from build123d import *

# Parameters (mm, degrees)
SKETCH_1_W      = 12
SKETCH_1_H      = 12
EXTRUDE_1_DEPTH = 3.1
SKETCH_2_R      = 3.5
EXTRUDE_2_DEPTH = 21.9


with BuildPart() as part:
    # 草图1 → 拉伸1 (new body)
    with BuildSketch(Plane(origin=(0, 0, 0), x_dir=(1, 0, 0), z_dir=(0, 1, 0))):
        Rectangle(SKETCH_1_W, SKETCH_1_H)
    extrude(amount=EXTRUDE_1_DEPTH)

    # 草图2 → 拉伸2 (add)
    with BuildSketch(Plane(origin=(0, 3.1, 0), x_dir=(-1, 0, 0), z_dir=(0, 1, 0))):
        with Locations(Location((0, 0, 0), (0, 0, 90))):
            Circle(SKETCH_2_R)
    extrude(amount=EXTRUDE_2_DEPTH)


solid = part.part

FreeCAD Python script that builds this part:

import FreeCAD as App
import Part
import Sketcher

V = App.Vector

doc = App.newDocument("Part")
params = doc.addObject("Spreadsheet::Sheet", "Params")
for row, (alias, value) in enumerate([
    ("sketch1_width", "12 mm"),
    ("pad1_length", "3.1 mm"),
    ("sketch2_diameter", "7 mm"),
    ("pad2_length", "21.9 mm"),
], start=1):
    params.set(f"A{row}", alias)
    params.set(f"B{row}", "=" + value)
    params.setAlias(f"B{row}", alias)

body = doc.addObject("PartDesign::Body", "Body")

# Sketch on XZ plane
sketch1 = body.newObject("Sketcher::SketchObject", "Sketch")
sketch1.AttachmentSupport = (doc.getObject("XZ_Plane"), [""])
sketch1.MapMode = "FlatFace"
sketch1.addGeometry([
    Part.LineSegment(V(-6, -6, 0), V(-6, 6, 0)),
    Part.LineSegment(V(-6, 6, 0), V(6, 6, 0)),
    Part.LineSegment(V(6, 6, 0), V(6, -6, 0)),
    Part.LineSegment(V(6, -6, 0), V(-6, -6, 0)),
], False)
sketch1.addConstraint([
    Sketcher.Constraint("Coincident", 0, 2, 1, 1),
    Sketcher.Constraint("Coincident", 1, 2, 2, 1),
    Sketcher.Constraint("Coincident", 2, 2, 3, 1),
    Sketcher.Constraint("Coincident", 3, 2, 0, 1),
    Sketcher.Constraint("Vertical", 0),
    Sketcher.Constraint("Horizontal", 1),
    Sketcher.Constraint("Vertical", 2),
    Sketcher.Constraint("Horizontal", 3),
    Sketcher.Constraint("Symmetric", 0, 2, 2, 2, -1, 1),
    Sketcher.Constraint("Equal", 3, 0),
    Sketcher.Constraint("DistanceX", 1, 1, 1, 2, 12.0),
])
sketch1.setExpression("Constraints[10]", "Params.sketch1_width")
pad1 = body.newObject("PartDesign::Pad", "Pad")
pad1.Profile = sketch1
pad1.setExpression("Length", "Params.pad1_length")
pad1.Reversed = True

# Sketch on XZ plane
sketch2 = body.newObject("Sketcher::SketchObject", "Sketch001")
sketch2.AttachmentSupport = (doc.getObject("XZ_Plane"), [""])
sketch2.MapMode = "FlatFace"
sketch2.AttachmentOffset = App.Placement(V(0, 0, -3.1), App.Rotation())
sketch2.addGeometry(Part.Circle(V(0, 0, 0), V(0, 0, 1), 3.5), False)
sketch2.addConstraint([
    Sketcher.Constraint("Coincident", 0, 3, -1, 1),
    Sketcher.Constraint("Diameter", 0, 7.0),
])
sketch2.setExpression("Constraints[1]", "Params.sketch2_diameter")
pad2 = body.newObject("PartDesign::Pad", "Pad001")
pad2.Profile = sketch2
pad2.setExpression("Length", "Params.pad2_length")
pad2.Reversed = True

doc.recompute()
